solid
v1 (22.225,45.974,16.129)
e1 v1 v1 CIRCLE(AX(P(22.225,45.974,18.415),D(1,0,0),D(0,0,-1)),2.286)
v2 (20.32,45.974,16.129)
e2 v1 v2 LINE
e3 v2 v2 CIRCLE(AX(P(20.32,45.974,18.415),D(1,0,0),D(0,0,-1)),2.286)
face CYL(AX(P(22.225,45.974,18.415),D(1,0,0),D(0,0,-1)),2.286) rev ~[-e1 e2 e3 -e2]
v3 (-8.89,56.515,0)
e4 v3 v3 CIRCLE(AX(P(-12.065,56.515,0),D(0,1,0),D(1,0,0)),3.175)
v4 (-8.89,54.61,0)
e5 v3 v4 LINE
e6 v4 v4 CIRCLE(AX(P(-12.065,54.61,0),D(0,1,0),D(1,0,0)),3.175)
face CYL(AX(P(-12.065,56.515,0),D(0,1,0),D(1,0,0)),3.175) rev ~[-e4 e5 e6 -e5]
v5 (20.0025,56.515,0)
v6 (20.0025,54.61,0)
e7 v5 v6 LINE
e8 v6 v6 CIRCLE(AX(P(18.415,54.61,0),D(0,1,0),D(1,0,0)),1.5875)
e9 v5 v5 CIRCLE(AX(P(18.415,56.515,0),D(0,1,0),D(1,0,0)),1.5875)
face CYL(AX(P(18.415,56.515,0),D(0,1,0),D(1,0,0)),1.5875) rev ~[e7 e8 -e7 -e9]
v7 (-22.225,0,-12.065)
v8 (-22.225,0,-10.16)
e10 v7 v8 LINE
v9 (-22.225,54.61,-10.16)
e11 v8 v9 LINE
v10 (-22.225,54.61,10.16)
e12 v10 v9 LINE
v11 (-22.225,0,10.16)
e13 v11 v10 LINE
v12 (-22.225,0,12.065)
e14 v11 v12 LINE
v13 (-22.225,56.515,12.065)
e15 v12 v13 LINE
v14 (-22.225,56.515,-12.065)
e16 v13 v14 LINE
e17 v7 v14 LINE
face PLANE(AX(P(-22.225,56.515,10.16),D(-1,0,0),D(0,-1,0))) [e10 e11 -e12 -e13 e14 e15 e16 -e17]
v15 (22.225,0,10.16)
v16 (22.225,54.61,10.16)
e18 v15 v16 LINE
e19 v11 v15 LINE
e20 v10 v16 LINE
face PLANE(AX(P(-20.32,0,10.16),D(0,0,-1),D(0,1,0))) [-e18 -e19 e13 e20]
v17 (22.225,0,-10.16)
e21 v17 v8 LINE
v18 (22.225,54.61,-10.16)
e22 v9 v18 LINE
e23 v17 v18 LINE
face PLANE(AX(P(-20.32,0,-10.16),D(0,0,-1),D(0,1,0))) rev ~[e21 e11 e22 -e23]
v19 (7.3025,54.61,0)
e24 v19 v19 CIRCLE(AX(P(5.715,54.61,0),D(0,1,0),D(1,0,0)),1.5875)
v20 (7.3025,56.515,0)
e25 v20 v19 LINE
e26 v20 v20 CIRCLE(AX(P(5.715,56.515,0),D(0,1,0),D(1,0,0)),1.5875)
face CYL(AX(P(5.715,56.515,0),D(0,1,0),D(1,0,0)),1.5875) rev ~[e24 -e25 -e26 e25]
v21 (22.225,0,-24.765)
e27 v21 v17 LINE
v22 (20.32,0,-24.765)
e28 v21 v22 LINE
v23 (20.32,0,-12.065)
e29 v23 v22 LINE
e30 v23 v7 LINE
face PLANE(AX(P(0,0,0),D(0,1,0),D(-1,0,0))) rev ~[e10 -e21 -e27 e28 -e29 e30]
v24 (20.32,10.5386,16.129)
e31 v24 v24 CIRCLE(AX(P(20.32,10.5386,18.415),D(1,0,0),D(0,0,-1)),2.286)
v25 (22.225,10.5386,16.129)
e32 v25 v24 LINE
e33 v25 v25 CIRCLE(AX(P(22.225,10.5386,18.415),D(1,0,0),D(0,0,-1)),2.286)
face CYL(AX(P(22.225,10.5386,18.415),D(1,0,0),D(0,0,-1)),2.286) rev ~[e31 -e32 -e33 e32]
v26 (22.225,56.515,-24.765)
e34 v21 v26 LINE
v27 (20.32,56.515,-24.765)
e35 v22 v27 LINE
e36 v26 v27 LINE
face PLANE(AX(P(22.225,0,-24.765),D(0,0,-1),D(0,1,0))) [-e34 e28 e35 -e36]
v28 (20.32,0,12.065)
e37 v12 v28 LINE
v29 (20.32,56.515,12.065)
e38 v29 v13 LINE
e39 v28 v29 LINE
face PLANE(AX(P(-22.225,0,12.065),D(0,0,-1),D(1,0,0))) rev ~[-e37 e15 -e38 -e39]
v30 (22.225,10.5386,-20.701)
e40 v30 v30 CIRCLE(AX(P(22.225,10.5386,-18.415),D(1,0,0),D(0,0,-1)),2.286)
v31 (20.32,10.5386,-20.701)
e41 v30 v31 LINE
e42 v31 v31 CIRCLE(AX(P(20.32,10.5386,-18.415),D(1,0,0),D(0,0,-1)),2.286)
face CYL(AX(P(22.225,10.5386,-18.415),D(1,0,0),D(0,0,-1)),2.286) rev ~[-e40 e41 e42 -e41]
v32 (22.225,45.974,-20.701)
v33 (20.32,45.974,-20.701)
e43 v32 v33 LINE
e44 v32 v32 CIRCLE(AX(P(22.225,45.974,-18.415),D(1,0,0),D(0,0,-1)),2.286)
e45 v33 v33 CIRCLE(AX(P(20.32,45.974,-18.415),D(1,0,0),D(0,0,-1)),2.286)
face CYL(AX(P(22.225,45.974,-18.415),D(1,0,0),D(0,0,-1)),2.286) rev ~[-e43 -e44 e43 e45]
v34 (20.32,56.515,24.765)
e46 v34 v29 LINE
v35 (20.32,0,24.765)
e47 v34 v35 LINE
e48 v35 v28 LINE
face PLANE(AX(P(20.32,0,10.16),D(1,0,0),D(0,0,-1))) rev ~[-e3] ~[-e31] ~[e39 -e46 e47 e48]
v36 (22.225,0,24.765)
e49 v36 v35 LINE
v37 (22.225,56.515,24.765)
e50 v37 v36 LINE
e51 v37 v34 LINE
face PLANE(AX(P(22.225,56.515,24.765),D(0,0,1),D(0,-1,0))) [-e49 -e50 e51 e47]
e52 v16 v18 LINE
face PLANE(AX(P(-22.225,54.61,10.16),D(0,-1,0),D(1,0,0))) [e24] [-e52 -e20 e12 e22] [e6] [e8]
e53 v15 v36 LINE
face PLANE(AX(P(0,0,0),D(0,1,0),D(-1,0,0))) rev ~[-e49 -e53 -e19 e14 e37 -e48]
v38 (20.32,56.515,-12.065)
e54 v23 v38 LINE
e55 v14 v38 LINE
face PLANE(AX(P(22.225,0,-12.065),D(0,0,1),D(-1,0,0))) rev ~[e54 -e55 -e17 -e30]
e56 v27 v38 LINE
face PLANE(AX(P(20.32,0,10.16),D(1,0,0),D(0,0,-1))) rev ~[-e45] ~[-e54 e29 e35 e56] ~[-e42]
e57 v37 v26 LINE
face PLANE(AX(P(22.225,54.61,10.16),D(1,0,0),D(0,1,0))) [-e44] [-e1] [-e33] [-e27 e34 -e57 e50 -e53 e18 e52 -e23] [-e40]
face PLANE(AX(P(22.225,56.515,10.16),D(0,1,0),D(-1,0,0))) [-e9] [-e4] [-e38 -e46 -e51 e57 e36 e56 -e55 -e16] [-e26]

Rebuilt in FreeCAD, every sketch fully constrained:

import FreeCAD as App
import Part
import Sketcher
Q = App.Units.Quantity


def add_polygon(sketch, points):
    """Adds a closed chain of lines whose ends are joined by coincident constraints."""
    first, n = sketch.GeometryCount, len(points)
    for a, b in zip(points, points[1:] + points[:1]):
        sketch.addGeometry(Part.LineSegment(App.Vector(*a, 0), App.Vector(*b, 0)), False)
    for i in range(n):
        sketch.addConstraint(Sketcher.Constraint("Coincident", first + i, 2, first + (i + 1) % n, 1))

doc = App.newDocument("Part")
body = doc.addObject("PartDesign::Body", "Body")
body.AllowCompound = True

# Sketch on XZ plane
sketch1 = body.newObject("Sketcher::SketchObject", "Sketch")
sketch1.AttachmentSupport = (doc.getObject("XZ_Plane"), [""])
sketch1.MapMode = "FlatFace"
add_polygon(sketch1, [(-22, -12), (-22, 12), (22, 12), (22, -12)])  # lines 0-3
add_polygon(sketch1, [(20, 10), (-20, 10), (-20, -10), (20, -10)])  # lines 4-7
sketch1.addConstraint([
    Sketcher.Constraint("Vertical", 0),
    Sketcher.Constraint("Horizontal", 1),
    Sketcher.Constraint("Vertical", 2),
    Sketcher.Constraint("Horizontal", 3),
    Sketcher.Constraint("Horizontal", 4),
    Sketcher.Constraint("Vertical", 5),
    Sketcher.Constraint("Horizontal", 6),
    Sketcher.Constraint("Vertical", 7),
    Sketcher.Constraint("Symmetric", 0, 2, 2, 2, -1, 1),
    Sketcher.Constraint("Symmetric", 4, 2, 6, 2, -1, 1),
    Sketcher.Constraint("DistanceX", 4, 2, 4, 1, Q("1.6 in")),
    Sketcher.Constraint("DistanceY", 5, 2, 5, 1, Q("0.8 in")),
    Sketcher.Constraint("DistanceX", 1, 1, 1, 2, Q("1.75 in")),
    Sketcher.Constraint("DistanceY", 0, 1, 0, 2, Q("0.95 in")),
])
pad1 = body.newObject("PartDesign::Pad", "Pad")
pad1.Profile = sketch1
pad1.Length = Q("2.225 in")
pad1.Reversed = True

# Sketch on YZ plane
sketch2 = body.newObject("Sketcher::SketchObject", "Sketch001")
sketch2.AttachmentSupport = (doc.getObject("YZ_Plane"), [""])
sketch2.MapMode = "FlatFace"
sketch2.AttachmentOffset = App.Placement(App.Vector(0, 0, -0.8 * 25.4), App.Rotation())
add_polygon(sketch2, [(0, 10), (0, -10), (57, -10), (57, 10)])  # lines 0-3
sketch2.addConstraint([
    Sketcher.Constraint("Vertical", 0),
    Sketcher.Constraint("Horizontal", 1),
    Sketcher.Constraint("Vertical", 2),
    Sketcher.Constraint("Horizontal", 3),
    Sketcher.Constraint("Symmetric", 0, 2, 3, 2, -1, 1),
    Sketcher.Constraint("DistanceY", 0, 2, 0, 1, Q("0.8 in")),
    Sketcher.Constraint("DistanceX", 1, 1, 1, 2, Q("2.225 in")),
])
pocket1 = body.newObject("PartDesign::Pocket", "Pocket")
pocket1.Profile = sketch2
pocket1.Length = Q("2.225 in")

# Sketch on YZ plane
sketch3 = body.newObject("Sketcher::SketchObject", "Sketch002")
sketch3.AttachmentSupport = (doc.getObject("YZ_Plane"), [""])
sketch3.MapMode = "FlatFace"
sketch3.AttachmentOffset = App.Placement(App.Vector(0, 0, 0.8 * 25.4), App.Rotation())
add_polygon(sketch3, [(0, -10), (0, 10), (57, 10), (57, -10)])  # lines 0-3
sketch3.addConstraint([
    Sketcher.Constraint("Vertical", 0),
    Sketcher.Constraint("Horizontal", 1),
    Sketcher.Constraint("Vertical", 2),
    Sketcher.Constraint("Horizontal", 3),
    Sketcher.Constraint("Symmetric", 0, 2, 3, 2, -1, 1),
    Sketcher.Constraint("DistanceY", 0, 1, 0, 2, Q("0.8 in")),
    Sketcher.Constraint("DistanceX", 1, 1, 1, 2, Q("2.225 in")),
])
pocket2 = body.newObject("PartDesign::Pocket", "Pocket001")
pocket2.Profile = sketch3
pocket2.Length = Q("2.225 in")
pocket2.Reversed = True

# Sketch on XY plane
sketch4 = body.newObject("Sketcher::SketchObject", "Sketch003")
sketch4.AttachmentSupport = (doc.getObject("XY_Plane"), [""])
sketch4.MapMode = "FlatFace"
sketch4.AttachmentOffset = App.Placement(App.Vector(0, 0, 0.4 * 25.4), App.Rotation())
add_polygon(sketch4, [(-22.2, 54.6), (-22.2, 56.5), (22.2, 56.5), (22.2, 54.6)])  # lines 0-3
sketch4.addConstraint([
    Sketcher.Constraint("Vertical", 0),
    Sketcher.Constraint("Horizontal", 1),
    Sketcher.Constraint("Vertical", 2),
    Sketcher.Constraint("Horizontal", 3),
    Sketcher.Constraint("DistanceX", 1, 1, 1, 2, Q("1.75 in")),
    Sketcher.Constraint("DistanceY", 0, 1, 0, 2, Q("0.075 in")),
    Sketcher.Constraint("DistanceY", -1, 1, 2, 2, Q("2.15 in")),
    Sketcher.Constraint("DistanceX", 0, 2, -1, 1, Q("0.875 in")),
])
pad2 = body.newObject("PartDesign::Pad", "Pad001")
pad2.Profile = sketch4
pad2.Length = Q("0.8 in")
pad2.Reversed = True

# Sketch on XZ plane
sketch5 = body.newObject("Sketcher::SketchObject", "Sketch004")
sketch5.AttachmentSupport = (doc.getObject("XZ_Plane"), [""])
sketch5.MapMode = "FlatFace"
sketch5.AttachmentOffset = App.Placement(App.Vector(0, 0, -2.225 * 25.4), App.Rotation())
sketch5.addGeometry([
    Part.Circle(App.Vector(18.4, 0, 0), App.Vector(0, 0, 1), 1.6),
    Part.Circle(App.Vector(5.7, 0, 0), App.Vector(0, 0, 1), 1.6),
    Part.Circle(App.Vector(-12.1, 0, 0), App.Vector(0, 0, 1), 3.2),
], False)
sketch5.addConstraint([
    Sketcher.Constraint("Equal", 0, 1),
    Sketcher.Constraint("PointOnObject", 0, 3, -1),
    Sketcher.Constraint("PointOnObject", 1, 3, -1),
    Sketcher.Constraint("PointOnObject", 2, 3, -1),
    Sketcher.Constraint("Diameter", 2, Q("0.25 in")),
    Sketcher.Constraint("Diameter", 0, Q("0.125 in")),
    Sketcher.Constraint("DistanceX", 1, 3, 0, 3, Q("0.5 in")),
    Sketcher.Constraint("DistanceX", 2, 3, 1, 3, Q("0.7 in")),
    Sketcher.Constraint("DistanceX", -1, 1, 0, 3, Q("0.725 in")),
])
pocket3 = body.newObject("PartDesign::Pocket", "Pocket002")
pocket3.Profile = sketch5
pocket3.Length = Q("0.6 in")
pocket3.Reversed = True

# Sketch on XZ plane
sketch6 = body.newObject("Sketcher::SketchObject", "Sketch005")
sketch6.AttachmentSupport = (doc.getObject("XZ_Plane"), [""])
sketch6.MapMode = "FlatFace"
sketch6.AttachmentOffset = App.Placement(App.Vector(0, 0, -2.225 * 25.4), App.Rotation())
add_polygon(sketch6, [(1.9, -12.1), (-22.2, -12.1), (-22.2, 12.1), (1.9, 12.1)])  # lines 0-3
sketch6.addGeometry(Part.Circle(App.Vector(-12.1, 0, 0), App.Vector(0, 0, 1), 3.2), False)  # 4
sketch6.addConstraint([
    Sketcher.Constraint("Horizontal", 0),
    Sketcher.Constraint("Vertical", 1),
    Sketcher.Constraint("Horizontal", 2),
    Sketcher.Constraint("Vertical", 3),
    Sketcher.Constraint("PointOnObject", 4, 3, -1),
    Sketcher.Constraint("Equal", 2, 1),
    Sketcher.Constraint("Diameter", 4, Q("0.25 in")),
    Sketcher.Constraint("DistanceX", 0, 2, 0, 1, Q("0.95 in")),
    Sketcher.Constraint("DistanceX", 0, 2, 4, 3, Q("0.4 in")),
    Sketcher.Constraint("DistanceX", 4, 3, -1, 1, Q("0.475 in")),
    Sketcher.Constraint("DistanceY", 0, 2, -1, 1, Q("0.475 in")),
])
pocket4 = body.newObject("PartDesign::Pocket", "Pocket003")
pocket4.Profile = sketch6
pocket4.Length = Q("0.75 in")

# Sketch on YZ plane
sketch7 = body.newObject("Sketcher::SketchObject", "Sketch006")
sketch7.AttachmentSupport = (doc.getObject("YZ_Plane"), [""])
sketch7.MapMode = "FlatFace"
sketch7.AttachmentOffset = App.Placement(App.Vector(0, 0, 0.875 * 25.4), App.Rotation())
add_polygon(sketch7, [(0, 25), (0, 12), (57, 12), (57, 25)])  # lines 0-3
add_polygon(sketch7, [(57, -25), (57, -12), (0, -12), (0, -25)])  # lines 4-7
sketch7.addConstraint([
    Sketcher.Constraint("Vertical", 0),
    Sketcher.Constraint("Horizontal", 1),
    Sketcher.Constraint("Vertical", 2),
    Sketcher.Constraint("Horizontal", 3),
    Sketcher.Constraint("Vertical", 4),
    Sketcher.Constraint("Horizontal", 5),
    Sketcher.Constraint("Vertical", 6),
    Sketcher.Constraint("Horizontal", 7),
    Sketcher.Constraint("Symmetric", 0, 2, 5, 2, -1, 1),
    Sketcher.Constraint("Symmetric", 3, 2, 6, 2, -1),
    Sketcher.Constraint("Vertical", 2, 2, 4, 2),
    Sketcher.Constraint("DistanceY", 0, 2, 0, 1, Q("0.5 in")),
    Sketcher.Constraint("DistanceX", 1, 1, 1, 2, Q("2.225 in")),
    Sketcher.Constraint("DistanceY", 4, 2, 1, 2, Q("0.95 in")),
])
pad3 = body.newObject("PartDesign::Pad", "Pad002")
pad3.Profile = sketch7
pad3.Length = Q("0.075 in")
pad3.Reversed = True

# Sketch on YZ plane
sketch8 = body.newObject("Sketcher::SketchObject", "Sketch007")
sketch8.AttachmentSupport = (doc.getObject("YZ_Plane"), [""])
sketch8.MapMode = "FlatFace"
sketch8.AttachmentOffset = App.Placement(App.Vector(0, 0, 0.875 * 25.4), App.Rotation())
sketch8.addGeometry([
    Part.Circle(App.Vector(10.5, 18.4, 0), App.Vector(0, 0, 1), 2.3),
    Part.Circle(App.Vector(46, 18.4, 0), App.Vector(0, 0, 1), 2.3),
    Part.Circle(App.Vector(46, -18.4, 0), App.Vector(0, 0, 1), 2.3),
    Part.Circle(App.Vector(10.5, -18.4, 0), App.Vector(0, 0, 1), 2.3),
], False)
sketch8.addConstraint([
    Sketcher.Constraint("Equal", 0, 1),
    Sketcher.Constraint("Equal", 1, 2),
    Sketcher.Constraint("Equal", 2, 3),
    Sketcher.Constraint("Symmetric", 1, 3, 2, 3, -1),
    Sketcher.Constraint("Symmetric", 0, 3, 3, 3, -1),
    Sketcher.Constraint("Horizontal", 0, 3, 1, 3),
    Sketcher.Constraint("Diameter", 0, Q("0.18 in")),
    Sketcher.Constraint("DistanceX", -1, 1, 1, 3, Q("1.81 in")),
    Sketcher.Constraint("DistanceY", 2, 3, 1, 3, Q("1.45 in")),
    Sketcher.Constraint("DistanceX", -1, 1, 0, 3, Q("0.4149 in")),
])
pocket5 = body.newObject("PartDesign::Pocket", "Pocket004")
pocket5.Profile = sketch8
pocket5.Length = Q("0.25 in")

doc.recompute()
